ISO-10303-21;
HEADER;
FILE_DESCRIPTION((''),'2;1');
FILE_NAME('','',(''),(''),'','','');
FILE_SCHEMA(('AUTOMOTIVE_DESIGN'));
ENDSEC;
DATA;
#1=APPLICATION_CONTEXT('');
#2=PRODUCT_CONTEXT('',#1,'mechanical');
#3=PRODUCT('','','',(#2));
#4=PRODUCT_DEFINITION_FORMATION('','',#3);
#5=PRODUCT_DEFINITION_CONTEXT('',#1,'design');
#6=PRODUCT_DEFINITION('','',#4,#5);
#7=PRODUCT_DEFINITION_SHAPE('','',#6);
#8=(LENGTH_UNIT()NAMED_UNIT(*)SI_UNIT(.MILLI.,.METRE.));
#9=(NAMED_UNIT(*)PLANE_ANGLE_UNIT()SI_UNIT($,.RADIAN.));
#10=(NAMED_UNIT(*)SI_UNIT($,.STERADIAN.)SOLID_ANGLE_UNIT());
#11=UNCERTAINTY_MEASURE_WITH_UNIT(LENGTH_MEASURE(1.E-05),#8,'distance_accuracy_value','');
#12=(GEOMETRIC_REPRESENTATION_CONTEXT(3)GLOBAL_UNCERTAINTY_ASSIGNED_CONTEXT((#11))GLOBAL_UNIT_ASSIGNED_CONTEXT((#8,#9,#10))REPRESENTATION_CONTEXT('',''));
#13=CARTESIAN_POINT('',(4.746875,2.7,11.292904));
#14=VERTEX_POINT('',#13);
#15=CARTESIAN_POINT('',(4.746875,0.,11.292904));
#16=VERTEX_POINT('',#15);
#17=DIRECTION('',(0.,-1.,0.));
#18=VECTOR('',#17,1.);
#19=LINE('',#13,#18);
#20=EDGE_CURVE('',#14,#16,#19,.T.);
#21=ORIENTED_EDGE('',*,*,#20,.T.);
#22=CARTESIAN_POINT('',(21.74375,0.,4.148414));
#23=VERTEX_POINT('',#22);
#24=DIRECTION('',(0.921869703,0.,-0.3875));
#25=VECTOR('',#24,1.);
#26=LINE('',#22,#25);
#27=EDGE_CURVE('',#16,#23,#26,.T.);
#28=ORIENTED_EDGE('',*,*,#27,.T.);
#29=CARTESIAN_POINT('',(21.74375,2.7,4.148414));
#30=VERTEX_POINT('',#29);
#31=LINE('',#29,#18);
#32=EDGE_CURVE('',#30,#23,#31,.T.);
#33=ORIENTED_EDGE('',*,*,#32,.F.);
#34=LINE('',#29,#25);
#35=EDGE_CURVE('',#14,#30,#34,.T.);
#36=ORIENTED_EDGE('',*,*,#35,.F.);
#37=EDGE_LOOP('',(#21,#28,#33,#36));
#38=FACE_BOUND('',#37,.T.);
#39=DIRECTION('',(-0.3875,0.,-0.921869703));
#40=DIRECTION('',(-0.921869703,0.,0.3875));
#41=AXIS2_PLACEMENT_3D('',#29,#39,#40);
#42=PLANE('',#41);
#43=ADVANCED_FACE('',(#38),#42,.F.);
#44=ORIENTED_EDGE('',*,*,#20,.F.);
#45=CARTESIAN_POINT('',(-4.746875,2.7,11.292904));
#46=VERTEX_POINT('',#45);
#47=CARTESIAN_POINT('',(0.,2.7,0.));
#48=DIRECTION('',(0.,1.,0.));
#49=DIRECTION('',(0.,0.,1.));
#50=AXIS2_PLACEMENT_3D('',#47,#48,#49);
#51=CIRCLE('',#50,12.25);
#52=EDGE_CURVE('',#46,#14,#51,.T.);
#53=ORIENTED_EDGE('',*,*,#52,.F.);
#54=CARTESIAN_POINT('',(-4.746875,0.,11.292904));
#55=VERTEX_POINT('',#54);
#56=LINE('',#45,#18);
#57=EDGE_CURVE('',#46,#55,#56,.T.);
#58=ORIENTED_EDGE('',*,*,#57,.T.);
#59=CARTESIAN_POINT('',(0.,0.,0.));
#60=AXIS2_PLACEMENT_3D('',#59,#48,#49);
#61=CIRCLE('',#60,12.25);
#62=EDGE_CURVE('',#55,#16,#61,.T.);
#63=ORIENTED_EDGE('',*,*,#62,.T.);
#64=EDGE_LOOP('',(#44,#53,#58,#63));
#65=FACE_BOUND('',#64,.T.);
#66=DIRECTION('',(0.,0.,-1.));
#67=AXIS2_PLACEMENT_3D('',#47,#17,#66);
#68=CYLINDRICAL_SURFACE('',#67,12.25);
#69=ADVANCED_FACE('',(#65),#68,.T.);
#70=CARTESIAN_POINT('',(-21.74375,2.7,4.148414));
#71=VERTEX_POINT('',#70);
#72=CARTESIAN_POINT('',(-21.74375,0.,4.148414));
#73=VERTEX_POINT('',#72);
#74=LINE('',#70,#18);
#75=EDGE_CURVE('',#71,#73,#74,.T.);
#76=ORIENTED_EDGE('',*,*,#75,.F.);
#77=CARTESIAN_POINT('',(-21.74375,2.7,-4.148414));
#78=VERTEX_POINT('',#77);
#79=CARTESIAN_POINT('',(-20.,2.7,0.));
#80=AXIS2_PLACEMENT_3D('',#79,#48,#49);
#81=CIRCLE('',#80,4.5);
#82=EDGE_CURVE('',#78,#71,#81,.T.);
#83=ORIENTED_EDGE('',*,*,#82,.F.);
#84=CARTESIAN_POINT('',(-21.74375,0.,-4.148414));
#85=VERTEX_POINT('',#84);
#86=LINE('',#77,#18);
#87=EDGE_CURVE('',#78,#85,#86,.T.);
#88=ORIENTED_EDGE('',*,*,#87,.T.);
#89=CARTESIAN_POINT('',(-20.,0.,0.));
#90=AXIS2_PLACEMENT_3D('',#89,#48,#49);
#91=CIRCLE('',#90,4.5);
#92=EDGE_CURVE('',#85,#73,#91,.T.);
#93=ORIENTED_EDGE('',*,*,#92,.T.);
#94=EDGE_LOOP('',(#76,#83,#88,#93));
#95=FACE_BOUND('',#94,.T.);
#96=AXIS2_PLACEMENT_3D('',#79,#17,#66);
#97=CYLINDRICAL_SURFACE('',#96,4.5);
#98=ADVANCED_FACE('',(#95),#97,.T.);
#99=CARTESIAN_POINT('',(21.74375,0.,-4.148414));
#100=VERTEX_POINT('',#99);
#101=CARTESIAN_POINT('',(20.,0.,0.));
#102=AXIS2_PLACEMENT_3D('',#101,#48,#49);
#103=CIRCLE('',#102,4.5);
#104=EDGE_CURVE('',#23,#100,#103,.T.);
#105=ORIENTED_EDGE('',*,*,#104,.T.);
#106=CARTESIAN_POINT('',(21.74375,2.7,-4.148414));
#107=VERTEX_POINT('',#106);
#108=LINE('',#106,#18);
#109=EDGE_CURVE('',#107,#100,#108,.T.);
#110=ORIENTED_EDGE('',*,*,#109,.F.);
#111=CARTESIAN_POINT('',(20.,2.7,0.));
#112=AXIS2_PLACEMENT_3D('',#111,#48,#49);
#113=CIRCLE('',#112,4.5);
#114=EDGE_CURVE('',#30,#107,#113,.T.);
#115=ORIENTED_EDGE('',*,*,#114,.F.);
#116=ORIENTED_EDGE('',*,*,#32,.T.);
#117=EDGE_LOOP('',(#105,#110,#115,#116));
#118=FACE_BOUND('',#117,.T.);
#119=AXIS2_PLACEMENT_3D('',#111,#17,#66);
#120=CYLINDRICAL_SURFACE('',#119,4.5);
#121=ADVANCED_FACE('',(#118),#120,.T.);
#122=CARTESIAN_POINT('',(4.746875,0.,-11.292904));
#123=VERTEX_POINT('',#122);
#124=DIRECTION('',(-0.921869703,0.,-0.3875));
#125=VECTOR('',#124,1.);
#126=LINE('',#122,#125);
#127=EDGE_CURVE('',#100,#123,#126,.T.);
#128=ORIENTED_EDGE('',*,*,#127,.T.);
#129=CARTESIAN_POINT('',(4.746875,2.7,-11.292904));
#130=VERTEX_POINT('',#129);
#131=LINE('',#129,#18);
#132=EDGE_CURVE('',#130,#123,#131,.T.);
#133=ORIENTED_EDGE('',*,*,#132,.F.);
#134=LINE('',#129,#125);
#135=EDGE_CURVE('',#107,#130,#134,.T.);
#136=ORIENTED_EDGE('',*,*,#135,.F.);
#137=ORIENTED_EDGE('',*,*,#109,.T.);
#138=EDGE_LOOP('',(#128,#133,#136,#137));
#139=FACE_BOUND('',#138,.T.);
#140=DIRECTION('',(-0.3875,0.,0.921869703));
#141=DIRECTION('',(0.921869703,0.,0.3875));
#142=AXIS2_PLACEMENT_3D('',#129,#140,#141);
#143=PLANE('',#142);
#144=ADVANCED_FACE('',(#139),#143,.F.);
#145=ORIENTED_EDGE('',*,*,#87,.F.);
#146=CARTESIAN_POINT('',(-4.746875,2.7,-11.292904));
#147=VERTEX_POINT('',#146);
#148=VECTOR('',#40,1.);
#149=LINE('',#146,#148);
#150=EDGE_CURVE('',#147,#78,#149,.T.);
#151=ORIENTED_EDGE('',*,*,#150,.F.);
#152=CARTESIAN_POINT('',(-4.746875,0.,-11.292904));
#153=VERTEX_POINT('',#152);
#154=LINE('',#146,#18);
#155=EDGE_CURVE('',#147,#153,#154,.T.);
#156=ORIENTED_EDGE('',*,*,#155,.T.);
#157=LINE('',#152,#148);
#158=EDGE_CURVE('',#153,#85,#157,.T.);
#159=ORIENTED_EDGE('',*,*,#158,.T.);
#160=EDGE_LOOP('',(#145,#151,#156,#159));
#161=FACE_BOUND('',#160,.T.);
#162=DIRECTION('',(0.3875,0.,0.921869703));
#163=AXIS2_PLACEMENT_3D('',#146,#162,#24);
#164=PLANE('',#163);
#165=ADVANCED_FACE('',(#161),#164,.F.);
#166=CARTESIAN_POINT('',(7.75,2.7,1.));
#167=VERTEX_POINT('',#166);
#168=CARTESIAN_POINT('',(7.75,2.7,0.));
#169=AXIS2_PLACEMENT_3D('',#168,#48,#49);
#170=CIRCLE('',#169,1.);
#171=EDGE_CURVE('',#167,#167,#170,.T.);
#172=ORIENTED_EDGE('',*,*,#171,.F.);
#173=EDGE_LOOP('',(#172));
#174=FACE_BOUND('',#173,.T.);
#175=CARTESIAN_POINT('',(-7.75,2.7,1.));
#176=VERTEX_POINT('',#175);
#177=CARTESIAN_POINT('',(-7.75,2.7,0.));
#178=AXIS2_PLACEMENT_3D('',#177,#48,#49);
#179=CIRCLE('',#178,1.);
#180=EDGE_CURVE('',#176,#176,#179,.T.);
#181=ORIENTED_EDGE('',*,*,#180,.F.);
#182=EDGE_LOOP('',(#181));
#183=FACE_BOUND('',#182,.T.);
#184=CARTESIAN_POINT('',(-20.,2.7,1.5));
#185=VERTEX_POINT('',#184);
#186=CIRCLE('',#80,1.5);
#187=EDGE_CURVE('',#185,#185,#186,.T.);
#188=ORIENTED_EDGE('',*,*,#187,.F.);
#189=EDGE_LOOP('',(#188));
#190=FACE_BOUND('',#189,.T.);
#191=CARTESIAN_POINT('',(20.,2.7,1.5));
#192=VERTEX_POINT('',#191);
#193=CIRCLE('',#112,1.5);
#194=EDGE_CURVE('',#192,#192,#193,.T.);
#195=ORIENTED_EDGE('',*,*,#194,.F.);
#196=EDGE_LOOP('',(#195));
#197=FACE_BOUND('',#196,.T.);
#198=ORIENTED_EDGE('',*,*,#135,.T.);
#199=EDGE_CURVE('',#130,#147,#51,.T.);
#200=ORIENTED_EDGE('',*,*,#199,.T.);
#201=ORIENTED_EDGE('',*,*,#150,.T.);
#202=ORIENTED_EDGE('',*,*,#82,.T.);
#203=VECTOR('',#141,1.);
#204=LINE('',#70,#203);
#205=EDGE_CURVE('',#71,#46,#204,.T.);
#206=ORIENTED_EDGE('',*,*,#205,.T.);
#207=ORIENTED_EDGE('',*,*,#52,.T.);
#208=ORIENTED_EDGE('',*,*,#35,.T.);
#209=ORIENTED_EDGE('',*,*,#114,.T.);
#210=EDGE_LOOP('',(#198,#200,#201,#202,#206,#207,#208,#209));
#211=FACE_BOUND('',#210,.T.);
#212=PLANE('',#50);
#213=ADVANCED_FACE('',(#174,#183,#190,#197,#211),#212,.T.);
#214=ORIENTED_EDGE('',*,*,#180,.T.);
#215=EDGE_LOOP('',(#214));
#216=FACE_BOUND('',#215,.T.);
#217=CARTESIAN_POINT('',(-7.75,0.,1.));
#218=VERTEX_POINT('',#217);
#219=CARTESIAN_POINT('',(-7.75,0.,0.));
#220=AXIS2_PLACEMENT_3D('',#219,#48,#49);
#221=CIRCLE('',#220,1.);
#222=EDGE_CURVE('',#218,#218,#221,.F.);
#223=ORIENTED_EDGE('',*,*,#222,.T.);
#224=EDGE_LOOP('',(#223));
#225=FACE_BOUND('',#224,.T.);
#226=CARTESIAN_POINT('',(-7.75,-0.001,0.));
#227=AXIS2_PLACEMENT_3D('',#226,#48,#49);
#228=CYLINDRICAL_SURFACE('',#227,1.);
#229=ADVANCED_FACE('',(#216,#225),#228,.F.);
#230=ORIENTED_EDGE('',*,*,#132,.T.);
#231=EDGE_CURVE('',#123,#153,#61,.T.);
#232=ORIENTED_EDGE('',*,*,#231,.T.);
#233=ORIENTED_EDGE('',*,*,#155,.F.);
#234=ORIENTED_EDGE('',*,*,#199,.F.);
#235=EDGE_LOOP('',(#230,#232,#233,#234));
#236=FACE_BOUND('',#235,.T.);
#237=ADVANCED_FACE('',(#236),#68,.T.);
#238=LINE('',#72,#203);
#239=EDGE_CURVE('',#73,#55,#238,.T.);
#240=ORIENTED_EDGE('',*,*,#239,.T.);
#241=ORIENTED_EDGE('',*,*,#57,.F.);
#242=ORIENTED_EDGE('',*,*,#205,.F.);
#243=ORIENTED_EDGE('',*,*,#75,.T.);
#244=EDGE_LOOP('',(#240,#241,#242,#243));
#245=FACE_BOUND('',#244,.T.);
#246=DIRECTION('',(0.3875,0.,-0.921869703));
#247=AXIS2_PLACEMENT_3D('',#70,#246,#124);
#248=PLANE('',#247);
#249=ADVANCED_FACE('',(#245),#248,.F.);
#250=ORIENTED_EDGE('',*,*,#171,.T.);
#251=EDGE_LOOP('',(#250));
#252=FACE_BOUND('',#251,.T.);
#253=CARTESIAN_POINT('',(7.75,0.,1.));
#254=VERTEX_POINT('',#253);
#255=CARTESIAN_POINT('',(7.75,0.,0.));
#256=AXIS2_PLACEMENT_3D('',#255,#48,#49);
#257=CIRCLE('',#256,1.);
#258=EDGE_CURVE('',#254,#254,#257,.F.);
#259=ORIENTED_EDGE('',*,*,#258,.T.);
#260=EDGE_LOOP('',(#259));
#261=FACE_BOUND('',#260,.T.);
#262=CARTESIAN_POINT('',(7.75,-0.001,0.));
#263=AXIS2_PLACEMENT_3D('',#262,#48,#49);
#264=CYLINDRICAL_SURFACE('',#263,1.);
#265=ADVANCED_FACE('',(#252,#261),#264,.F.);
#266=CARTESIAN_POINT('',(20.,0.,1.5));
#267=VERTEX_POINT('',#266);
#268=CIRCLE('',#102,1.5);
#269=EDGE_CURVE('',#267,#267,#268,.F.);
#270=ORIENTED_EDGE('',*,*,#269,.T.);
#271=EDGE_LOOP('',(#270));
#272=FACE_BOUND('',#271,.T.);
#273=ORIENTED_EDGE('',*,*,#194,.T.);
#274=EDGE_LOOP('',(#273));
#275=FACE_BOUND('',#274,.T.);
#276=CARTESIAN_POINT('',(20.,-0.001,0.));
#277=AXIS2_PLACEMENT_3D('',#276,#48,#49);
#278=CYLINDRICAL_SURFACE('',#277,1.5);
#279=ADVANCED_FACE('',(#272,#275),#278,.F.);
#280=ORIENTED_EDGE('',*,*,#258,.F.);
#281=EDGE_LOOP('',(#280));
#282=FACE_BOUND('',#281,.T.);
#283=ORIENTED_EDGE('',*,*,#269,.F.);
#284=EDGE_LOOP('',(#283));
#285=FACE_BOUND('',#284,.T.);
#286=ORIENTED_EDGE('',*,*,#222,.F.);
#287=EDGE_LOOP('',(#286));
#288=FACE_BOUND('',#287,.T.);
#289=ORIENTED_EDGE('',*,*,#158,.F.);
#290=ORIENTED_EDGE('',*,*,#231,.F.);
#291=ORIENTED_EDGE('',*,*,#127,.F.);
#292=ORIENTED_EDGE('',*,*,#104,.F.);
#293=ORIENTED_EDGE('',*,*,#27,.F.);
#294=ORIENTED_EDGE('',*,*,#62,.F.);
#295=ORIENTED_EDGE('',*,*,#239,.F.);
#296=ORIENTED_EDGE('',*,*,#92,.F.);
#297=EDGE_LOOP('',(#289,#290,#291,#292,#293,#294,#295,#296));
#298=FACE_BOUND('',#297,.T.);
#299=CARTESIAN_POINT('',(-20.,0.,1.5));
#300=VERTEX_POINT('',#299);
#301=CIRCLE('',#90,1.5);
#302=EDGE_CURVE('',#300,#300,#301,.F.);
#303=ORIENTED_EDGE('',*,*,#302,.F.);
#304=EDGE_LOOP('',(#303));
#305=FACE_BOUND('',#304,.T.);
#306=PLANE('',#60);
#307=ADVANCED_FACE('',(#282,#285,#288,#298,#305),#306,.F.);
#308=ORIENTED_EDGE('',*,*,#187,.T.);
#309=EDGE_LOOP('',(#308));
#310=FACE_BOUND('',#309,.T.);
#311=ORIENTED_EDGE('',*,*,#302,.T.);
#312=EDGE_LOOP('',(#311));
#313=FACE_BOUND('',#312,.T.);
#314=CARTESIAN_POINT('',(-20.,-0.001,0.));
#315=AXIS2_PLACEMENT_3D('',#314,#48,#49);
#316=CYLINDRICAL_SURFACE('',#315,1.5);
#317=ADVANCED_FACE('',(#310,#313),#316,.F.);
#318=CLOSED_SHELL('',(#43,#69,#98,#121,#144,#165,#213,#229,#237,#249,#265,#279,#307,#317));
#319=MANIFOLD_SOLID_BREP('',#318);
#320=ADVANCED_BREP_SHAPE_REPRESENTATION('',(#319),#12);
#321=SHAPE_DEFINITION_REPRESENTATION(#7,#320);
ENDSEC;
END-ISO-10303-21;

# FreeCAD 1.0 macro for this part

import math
import FreeCAD as App
import Part
import Sketcher

doc = App.newDocument("Part")
body = doc.addObject("PartDesign::Body", "Body")

sketch1 = body.newObject("Sketcher::SketchObject", "Sketch")
sketch1.AttachmentSupport = (doc.getObject("XZ_Plane"), [""])
sketch1.MapMode = "FlatFace"
sketch1.addGeometry([
    Part.LineSegment(App.Vector(21.7, -4.1, 0), App.Vector(4.7, -11.3, 0)),
    Part.ArcOfCircle(Part.Circle(App.Vector(0, 0, 0), App.Vector(0, 0, 1), 12.2), math.radians(-113), math.radians(-67)),
    Part.LineSegment(App.Vector(-4.7, -11.3, 0), App.Vector(-21.7, -4.1, 0)),
    Part.ArcOfCircle(Part.Circle(App.Vector(-20, 0, 0), App.Vector(0, 0, 1), 4.5), math.radians(113), math.radians(247)),
    Part.LineSegment(App.Vector(-21.7, 4.1, 0), App.Vector(-4.7, 11.3, 0)),
    Part.ArcOfCircle(Part.Circle(App.Vector(0, 0, 0), App.Vector(0, 0, 1), 12.2), math.radians(67), math.radians(113)),
    Part.LineSegment(App.Vector(4.7, 11.3, 0), App.Vector(21.7, 4.1, 0)),
    Part.ArcOfCircle(Part.Circle(App.Vector(20, 0, 0), App.Vector(0, 0, 1), 4.5), math.radians(-67), math.radians(67)),
], False)
sketch1.addConstraint([
    Sketcher.Constraint("Tangent", 0, 2, 1, 2),
    Sketcher.Constraint("Tangent", 1, 1, 2, 1),
    Sketcher.Constraint("Tangent", 2, 2, 3, 2),
    Sketcher.Constraint("Tangent", 3, 1, 4, 1),
    Sketcher.Constraint("Tangent", 4, 2, 5, 2),
    Sketcher.Constraint("Tangent", 5, 1, 6, 1),
    Sketcher.Constraint("Tangent", 6, 2, 7, 2),
    Sketcher.Constraint("Tangent", 7, 1, 0, 1),
    Sketcher.Constraint("Coincident", 1, 3, -1, 1),
    Sketcher.Constraint("Coincident", 5, 3, -1, 1),
    Sketcher.Constraint("Equal", 1, 5),
    Sketcher.Constraint("Equal", 3, 7),
    Sketcher.Constraint("Symmetric", 3, 3, 7, 3, -1, 1),
    Sketcher.Constraint("PointOnObject", 3, 3, -1),
    Sketcher.Constraint("Radius", 3, 4.5),
    Sketcher.Constraint("Radius", 1, 12.25),
    Sketcher.Constraint("DistanceX", 3, 3, -1, 1, 20.0),
])
pad1 = body.newObject("PartDesign::Pad", "Pad")
pad1.Profile = sketch1
pad1.Length = 2.7
pad1.Reversed = True

sketch2 = body.newObject("Sketcher::SketchObject", "Sketch001")
sketch2.AttachmentSupport = (doc.getObject("XZ_Plane"), [""])
sketch2.MapMode = "FlatFace"
sketch2.AttachmentOffset = App.Placement(App.Vector(0, 0, -2.7), App.Rotation())
sketch2.addGeometry(Part.Circle(App.Vector(-20, 0, 0), App.Vector(0, 0, 1), 1.5), False)
sketch2.addConstraint([
    Sketcher.Constraint("PointOnObject", 0, 3, -1),
    Sketcher.Constraint("Diameter", 0, 3.0),
    Sketcher.Constraint("DistanceX", 0, 3, -1, 1, 20.0),
])
pocket1 = body.newObject("PartDesign::Pocket", "Pocket")
pocket1.Profile = sketch2
pocket1.Type = "UpToFirst"
pocket1.Reversed = True

sketch3 = body.newObject("Sketcher::SketchObject", "Sketch002")
sketch3.AttachmentSupport = (doc.getObject("XZ_Plane"), [""])
sketch3.MapMode = "FlatFace"
sketch3.AttachmentOffset = App.Placement(App.Vector(0, 0, -2.7), App.Rotation())
sketch3.addGeometry(Part.Circle(App.Vector(20, 0, 0), App.Vector(0, 0, 1), 1.5), False)
sketch3.addConstraint([
    Sketcher.Constraint("PointOnObject", 0, 3, -1),
    Sketcher.Constraint("Diameter", 0, 3.0),
    Sketcher.Constraint("DistanceX", -1, 1, 0, 3, 20.0),
])
pocket2 = body.newObject("PartDesign::Pocket", "Pocket001")
pocket2.Profile = sketch3
pocket2.Type = "UpToFirst"
pocket2.Reversed = True

sketch4 = body.newObject("Sketcher::SketchObject", "Sketch003")
sketch4.AttachmentSupport = (doc.getObject("XZ_Plane"), [""])
sketch4.MapMode = "FlatFace"
sketch4.AttachmentOffset = App.Placement(App.Vector(0, 0, -2.7), App.Rotation())
sketch4.addGeometry(Part.Circle(App.Vector(7.8, 0, 0), App.Vector(0, 0, 1), 1), False)
sketch4.addConstraint([
    Sketcher.Constraint("PointOnObject", 0, 3, -1),
    Sketcher.Constraint("Diameter", 0, 2.0),
    Sketcher.Constraint("DistanceX", -1, 1, 0, 3, 7.75),
])
pocket3 = body.newObject("PartDesign::Pocket", "Pocket002")
pocket3.Profile = sketch4
pocket3.Type = "UpToFirst"
pocket3.Reversed = True

sketch5 = body.newObject("Sketcher::SketchObject", "Sketch004")
sketch5.AttachmentSupport = (doc.getObject("XZ_Plane"), [""])
sketch5.MapMode = "FlatFace"
sketch5.AttachmentOffset = App.Placement(App.Vector(0, 0, -2.7), App.Rotation())
sketch5.addGeometry(Part.Circle(App.Vector(-7.8, 0, 0), App.Vector(0, 0, 1), 1), False)
sketch5.addConstraint([
    Sketcher.Constraint("PointOnObject", 0, 3, -1),
    Sketcher.Constraint("Diameter", 0, 2.0),
    Sketcher.Constraint("DistanceX", 0, 3, -1, 1, 7.75),
])
pocket4 = body.newObject("PartDesign::Pocket", "Pocket003")
pocket4.Profile = sketch5
pocket4.Type = "UpToFirst"
pocket4.Reversed = True

doc.recompute()
